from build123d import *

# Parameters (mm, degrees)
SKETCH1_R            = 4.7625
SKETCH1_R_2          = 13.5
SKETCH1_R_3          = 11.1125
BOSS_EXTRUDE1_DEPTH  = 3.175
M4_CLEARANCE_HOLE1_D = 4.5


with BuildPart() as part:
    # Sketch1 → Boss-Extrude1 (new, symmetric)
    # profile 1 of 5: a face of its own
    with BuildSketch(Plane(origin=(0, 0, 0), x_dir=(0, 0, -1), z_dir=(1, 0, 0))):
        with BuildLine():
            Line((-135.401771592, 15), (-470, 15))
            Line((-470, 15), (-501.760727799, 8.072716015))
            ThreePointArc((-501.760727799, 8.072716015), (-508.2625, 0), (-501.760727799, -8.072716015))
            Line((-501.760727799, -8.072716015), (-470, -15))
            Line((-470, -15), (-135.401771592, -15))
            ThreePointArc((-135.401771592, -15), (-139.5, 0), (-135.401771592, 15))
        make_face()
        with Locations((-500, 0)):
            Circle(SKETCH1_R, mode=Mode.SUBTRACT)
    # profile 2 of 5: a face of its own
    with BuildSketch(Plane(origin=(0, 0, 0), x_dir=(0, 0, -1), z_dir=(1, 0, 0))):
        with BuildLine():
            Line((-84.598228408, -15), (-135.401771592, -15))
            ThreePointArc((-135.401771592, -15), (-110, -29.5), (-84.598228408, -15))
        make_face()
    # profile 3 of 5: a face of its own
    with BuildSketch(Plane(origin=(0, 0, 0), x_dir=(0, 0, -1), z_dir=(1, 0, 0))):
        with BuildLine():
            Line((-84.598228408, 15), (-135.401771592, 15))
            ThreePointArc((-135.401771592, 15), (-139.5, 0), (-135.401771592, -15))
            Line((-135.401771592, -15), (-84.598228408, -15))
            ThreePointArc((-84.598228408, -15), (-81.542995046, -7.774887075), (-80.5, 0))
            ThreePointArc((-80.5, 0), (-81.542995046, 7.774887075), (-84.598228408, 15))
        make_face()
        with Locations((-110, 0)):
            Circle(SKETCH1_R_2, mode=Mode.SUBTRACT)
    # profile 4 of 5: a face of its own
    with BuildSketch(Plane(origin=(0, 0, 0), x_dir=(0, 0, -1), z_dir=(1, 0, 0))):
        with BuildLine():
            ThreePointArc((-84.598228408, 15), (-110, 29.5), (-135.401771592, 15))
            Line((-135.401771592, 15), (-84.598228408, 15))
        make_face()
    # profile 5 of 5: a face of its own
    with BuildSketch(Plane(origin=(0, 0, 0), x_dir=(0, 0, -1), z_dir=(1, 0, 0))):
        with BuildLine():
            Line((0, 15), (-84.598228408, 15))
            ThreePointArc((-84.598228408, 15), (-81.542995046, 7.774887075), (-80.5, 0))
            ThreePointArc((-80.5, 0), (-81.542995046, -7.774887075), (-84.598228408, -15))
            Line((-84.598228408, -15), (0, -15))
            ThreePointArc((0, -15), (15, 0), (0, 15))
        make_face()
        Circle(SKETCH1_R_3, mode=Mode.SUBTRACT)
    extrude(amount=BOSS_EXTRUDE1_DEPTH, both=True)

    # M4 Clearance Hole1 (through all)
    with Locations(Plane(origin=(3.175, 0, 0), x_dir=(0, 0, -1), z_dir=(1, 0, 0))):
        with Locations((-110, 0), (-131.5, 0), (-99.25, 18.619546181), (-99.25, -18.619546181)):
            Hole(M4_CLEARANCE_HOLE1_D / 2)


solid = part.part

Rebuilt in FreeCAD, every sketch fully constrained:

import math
import FreeCAD as App
import Part
import Sketcher

doc = App.newDocument("Part")
body = doc.addObject("PartDesign::Body", "Body")

sketch1 = body.newObject("Sketcher::SketchObject", "Sketch")
sketch1.AttachmentSupport = (doc.getObject("YZ_Plane"), [""])
sketch1.MapMode = "FlatFace"
sketch1.addGeometry([
    Part.LineSegment(App.Vector(15, 135.4, 0), App.Vector(15, 470, 0)),
    Part.LineSegment(App.Vector(15, 470, 0), App.Vector(8.1, 501.8, 0)),
    Part.ArcOfCircle(Part.Circle(App.Vector(0, 500, 0), App.Vector(0, 0, 1), 8.3), math.radians(12), math.radians(168)),
    Part.LineSegment(App.Vector(-8.1, 501.8, 0), App.Vector(-15, 470, 0)),
    Part.LineSegment(App.Vector(-15, 470, 0), App.Vector(-15, 135.4, 0)),
    Part.ArcOfCircle(Part.Circle(App.Vector(0, 110, 0), App.Vector(0, 0, 1), 29.5), math.radians(121), math.radians(239)),
    Part.LineSegment(App.Vector(-15, 84.6, 0), App.Vector(-15, 0, 0)),
    Part.ArcOfCircle(Part.Circle(App.Vector(0, 0, 0), App.Vector(0, 0, 1), 15), math.radians(180), math.radians(360)),
    Part.LineSegment(App.Vector(15, 0, 0), App.Vector(15, 84.6, 0)),
    Part.ArcOfCircle(Part.Circle(App.Vector(0, 110, 0), App.Vector(0, 0, 1), 29.5), math.radians(-59), math.radians(59)),
    Part.Circle(App.Vector(0, 500, 0), App.Vector(0, 0, 1), 4.8),
    Part.Circle(App.Vector(0, 110, 0), App.Vector(0, 0, 1), 13.5),
    Part.Circle(App.Vector(0, 0, 0), App.Vector(0, 0, 1), 11.1),
], False)
sketch1.addConstraint([
    Sketcher.Constraint("Coincident", 0, 2, 1, 1),
    Sketcher.Constraint("Tangent", 1, 2, 2, 1),
    Sketcher.Constraint("Tangent", 2, 2, 3, 1),
    Sketcher.Constraint("Coincident", 3, 2, 4, 1),
    Sketcher.Constraint("Coincident", 4, 2, 5, 1),
    Sketcher.Constraint("Coincident", 5, 2, 6, 1),
    Sketcher.Constraint("Tangent", 6, 2, 7, 1),
    Sketcher.Constraint("Tangent", 7, 2, 8, 1),
    Sketcher.Constraint("Coincident", 8, 2, 9, 1),
    Sketcher.Constraint("Coincident", 9, 2, 0, 1),
    Sketcher.Constraint("Vertical", 0),
    Sketcher.Constraint("Vertical", 4),
    Sketcher.Constraint("Vertical", 6),
    Sketcher.Constraint("Vertical", 8),
    Sketcher.Constraint("Coincident", 7, 3, -1, 1),
    Sketcher.Constraint("Coincident", 12, 3, -1, 1),
    Sketcher.Constraint("Coincident", 9, 3, 5, 3),
    Sketcher.Constraint("Coincident", 10, 3, 2, 3),
    Sketcher.Constraint("Coincident", 11, 3, 5, 3),
    Sketcher.Constraint("Equal", 5, 9),
    Sketcher.Constraint("Symmetric", 1, 2, 2, 2, -2),
    Sketcher.Constraint("Symmetric", 4, 2, 9, 2, -2),
    Sketcher.Constraint("Vertical", 4, 2, 5, 2),
    Sketcher.Constraint("Diameter", 11, 27.0),
    Sketcher.Constraint("Radius", 7, 15.0),
    Sketcher.Constraint("Radius", 5, 29.5),
    Sketcher.Constraint("Diameter", 10, 9.525),
    Sketcher.Constraint("Diameter", 12, 22.225),
    Sketcher.Constraint("DistanceY", -1, 1, 2, 3, 500.0),
    Sketcher.Constraint("DistanceY", -1, 1, 5, 3, 110.0),
    Sketcher.Constraint("DistanceY", -1, 1, 0, 2, 470.0),
    Sketcher.Constraint("Radius", 2, 8.2625),
])
pad1 = body.newObject("PartDesign::Pad", "Pad")
pad1.Profile = sketch1
pad1.Length = 6.35
pad1.Midplane = True

sketch2 = body.newObject("Sketcher::SketchObject", "Sketch001")
sketch2.AttachmentSupport = (doc.getObject("YZ_Plane"), [""])
sketch2.MapMode = "FlatFace"
sketch2.AttachmentOffset = App.Placement(App.Vector(0, 0, 3.175), App.Rotation())
sketch2.addGeometry([
    Part.Circle(App.Vector(0, 110, 0), App.Vector(0, 0, 1), 2.2),
    Part.Circle(App.Vector(0, 131.5, 0), App.Vector(0, 0, 1), 2.2),
    Part.Circle(App.Vector(18.6, 99.2, 0), App.Vector(0, 0, 1), 2.2),
    Part.Circle(App.Vector(-18.6, 99.2, 0), App.Vector(0, 0, 1), 2.2),
], False)
sketch2.addConstraint([
    Sketcher.Constraint("Equal", 0, 1),
    Sketcher.Constraint("Equal", 1, 2),
    Sketcher.Constraint("Equal", 2, 3),
    Sketcher.Constraint("Symmetric", 2, 3, 3, 3, -2),
    Sketcher.Constraint("PointOnObject", 0, 3, -2),
    Sketcher.Constraint("PointOnObject", 1, 3, -2),
    Sketcher.Constraint("Diameter", 0, 4.5),
    Sketcher.Constraint("DistanceY", -1, 1, 0, 3, 110.0),
    Sketcher.Constraint("DistanceY", -1, 1, 1, 3, 131.5),
    Sketcher.Constraint("DistanceY", -1, 1, 2, 3, 99.25),
    Sketcher.Constraint("DistanceX", -1, 1, 2, 3, 18.619546),
])
doc.recompute()
hole = body.newObject("PartDesign::Hole", "Hole")
hole.Profile = sketch2
hole.ThreadType = "None"
hole.Diameter = 4.5
hole.DepthType = "ThroughAll"

doc.recompute()
